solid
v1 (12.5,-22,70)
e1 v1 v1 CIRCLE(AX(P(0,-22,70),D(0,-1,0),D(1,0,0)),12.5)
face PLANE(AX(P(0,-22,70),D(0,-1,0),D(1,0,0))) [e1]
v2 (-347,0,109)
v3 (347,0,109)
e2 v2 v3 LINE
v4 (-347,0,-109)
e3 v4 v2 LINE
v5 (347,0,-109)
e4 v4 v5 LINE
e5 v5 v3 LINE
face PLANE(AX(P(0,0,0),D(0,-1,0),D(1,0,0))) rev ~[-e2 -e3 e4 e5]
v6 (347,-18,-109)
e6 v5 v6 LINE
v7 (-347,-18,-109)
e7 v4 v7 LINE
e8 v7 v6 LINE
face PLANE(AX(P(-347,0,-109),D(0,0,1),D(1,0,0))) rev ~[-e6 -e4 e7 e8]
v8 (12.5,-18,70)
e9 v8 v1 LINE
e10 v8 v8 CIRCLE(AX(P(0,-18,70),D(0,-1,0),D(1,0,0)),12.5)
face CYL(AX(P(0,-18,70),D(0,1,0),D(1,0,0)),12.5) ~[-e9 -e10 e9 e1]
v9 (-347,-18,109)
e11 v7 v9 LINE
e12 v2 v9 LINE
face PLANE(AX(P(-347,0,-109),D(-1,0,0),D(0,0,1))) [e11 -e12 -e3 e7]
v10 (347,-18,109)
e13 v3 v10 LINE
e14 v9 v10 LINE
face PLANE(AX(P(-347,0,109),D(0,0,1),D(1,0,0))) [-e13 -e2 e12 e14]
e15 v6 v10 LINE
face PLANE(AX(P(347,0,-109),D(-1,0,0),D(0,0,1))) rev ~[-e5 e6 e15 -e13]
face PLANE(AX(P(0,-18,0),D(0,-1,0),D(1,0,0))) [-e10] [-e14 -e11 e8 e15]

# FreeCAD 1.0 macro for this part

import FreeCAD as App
import Part
import Sketcher

doc = App.newDocument("Part")
params = doc.addObject("Spreadsheet::Sheet", "Params")
for row, (alias, value) in enumerate([
    ("sketch1_width", "694 mm"),
    ("sketch1_height", "218 mm"),
    ("pad1_length", "18 mm"),
    ("sketch2_diameter", "25 mm"),
    ("pad2_length", "4 mm"),
], start=1):
    params.set(f"A{row}", alias)
    params.set(f"B{row}", "=" + value)
    params.setAlias(f"B{row}", alias)

body = doc.addObject("PartDesign::Body", "Body")

# Sketch on XZ plane
sketch1 = doc.addObject("Sketcher::SketchObject", "Sketch")
body.addObject(sketch1)
sketch1.AttachmentSupport = (doc.XZ_Plane, [""])
sketch1.MapMode = "FlatFace"
sketch1.addGeometry([
    Part.LineSegment(App.Vector(-347, 109, 0), App.Vector(-347, -109, 0)),
    Part.LineSegment(App.Vector(-347, -109, 0), App.Vector(347, -109, 0)),
    Part.LineSegment(App.Vector(347, -109, 0), App.Vector(347, 109, 0)),
    Part.LineSegment(App.Vector(347, 109, 0), App.Vector(-347, 109, 0)),
], False)
sketch1.addConstraint([
    Sketcher.Constraint("Coincident", 0, 2, 1, 1),
    Sketcher.Constraint("Coincident", 1, 2, 2, 1),
    Sketcher.Constraint("Coincident", 2, 2, 3, 1),
    Sketcher.Constraint("Coincident", 3, 2, 0, 1),
    Sketcher.Constraint("Vertical", 0),
    Sketcher.Constraint("Horizontal", 1),
    Sketcher.Constraint("Vertical", 2),
    Sketcher.Constraint("Horizontal", 3),
    Sketcher.Constraint("Symmetric", 0, 2, 2, 2, -1, 1),
    Sketcher.Constraint("DistanceX", 1, 1, 1, 2, 694.0),
    Sketcher.Constraint("DistanceY", 0, 2, 0, 1, 218.0),
])
sketch1.setExpression("Constraints[9]", "Params.sketch1_width")
sketch1.setExpression("Constraints[10]", "Params.sketch1_height")
pad1 = doc.addObject("PartDesign::Pad", "Pad")
body.addObject(pad1)
pad1.Profile = sketch1
pad1.setExpression("Length", "Params.pad1_length")

# Sketch on XZ plane
sketch2 = doc.addObject("Sketcher::SketchObject", "Sketch001")
body.addObject(sketch2)
sketch2.AttachmentSupport = (doc.XZ_Plane, [""])
sketch2.MapMode = "FlatFace"
sketch2.AttachmentOffset = App.Placement(App.Vector(0, 0, 18), App.Rotation())
sketch2.addGeometry(Part.Circle(App.Vector(0, 70, 0), App.Vector(0, 0, 1), 12), False)
sketch2.addConstraint([
    Sketcher.Constraint("PointOnObject", 0, 3, -2),
    Sketcher.Constraint("Diameter", 0, 25.0),
    Sketcher.Constraint("DistanceY", -1, 1, 0, 3, 70.0),
])
sketch2.setExpression("Constraints[1]", "Params.sketch2_diameter")
pad2 = doc.addObject("PartDesign::Pad", "Pad001")
body.addObject(pad2)
pad2.Profile = sketch2
pad2.setExpression("Length", "Params.pad2_length")

doc.recompute()
